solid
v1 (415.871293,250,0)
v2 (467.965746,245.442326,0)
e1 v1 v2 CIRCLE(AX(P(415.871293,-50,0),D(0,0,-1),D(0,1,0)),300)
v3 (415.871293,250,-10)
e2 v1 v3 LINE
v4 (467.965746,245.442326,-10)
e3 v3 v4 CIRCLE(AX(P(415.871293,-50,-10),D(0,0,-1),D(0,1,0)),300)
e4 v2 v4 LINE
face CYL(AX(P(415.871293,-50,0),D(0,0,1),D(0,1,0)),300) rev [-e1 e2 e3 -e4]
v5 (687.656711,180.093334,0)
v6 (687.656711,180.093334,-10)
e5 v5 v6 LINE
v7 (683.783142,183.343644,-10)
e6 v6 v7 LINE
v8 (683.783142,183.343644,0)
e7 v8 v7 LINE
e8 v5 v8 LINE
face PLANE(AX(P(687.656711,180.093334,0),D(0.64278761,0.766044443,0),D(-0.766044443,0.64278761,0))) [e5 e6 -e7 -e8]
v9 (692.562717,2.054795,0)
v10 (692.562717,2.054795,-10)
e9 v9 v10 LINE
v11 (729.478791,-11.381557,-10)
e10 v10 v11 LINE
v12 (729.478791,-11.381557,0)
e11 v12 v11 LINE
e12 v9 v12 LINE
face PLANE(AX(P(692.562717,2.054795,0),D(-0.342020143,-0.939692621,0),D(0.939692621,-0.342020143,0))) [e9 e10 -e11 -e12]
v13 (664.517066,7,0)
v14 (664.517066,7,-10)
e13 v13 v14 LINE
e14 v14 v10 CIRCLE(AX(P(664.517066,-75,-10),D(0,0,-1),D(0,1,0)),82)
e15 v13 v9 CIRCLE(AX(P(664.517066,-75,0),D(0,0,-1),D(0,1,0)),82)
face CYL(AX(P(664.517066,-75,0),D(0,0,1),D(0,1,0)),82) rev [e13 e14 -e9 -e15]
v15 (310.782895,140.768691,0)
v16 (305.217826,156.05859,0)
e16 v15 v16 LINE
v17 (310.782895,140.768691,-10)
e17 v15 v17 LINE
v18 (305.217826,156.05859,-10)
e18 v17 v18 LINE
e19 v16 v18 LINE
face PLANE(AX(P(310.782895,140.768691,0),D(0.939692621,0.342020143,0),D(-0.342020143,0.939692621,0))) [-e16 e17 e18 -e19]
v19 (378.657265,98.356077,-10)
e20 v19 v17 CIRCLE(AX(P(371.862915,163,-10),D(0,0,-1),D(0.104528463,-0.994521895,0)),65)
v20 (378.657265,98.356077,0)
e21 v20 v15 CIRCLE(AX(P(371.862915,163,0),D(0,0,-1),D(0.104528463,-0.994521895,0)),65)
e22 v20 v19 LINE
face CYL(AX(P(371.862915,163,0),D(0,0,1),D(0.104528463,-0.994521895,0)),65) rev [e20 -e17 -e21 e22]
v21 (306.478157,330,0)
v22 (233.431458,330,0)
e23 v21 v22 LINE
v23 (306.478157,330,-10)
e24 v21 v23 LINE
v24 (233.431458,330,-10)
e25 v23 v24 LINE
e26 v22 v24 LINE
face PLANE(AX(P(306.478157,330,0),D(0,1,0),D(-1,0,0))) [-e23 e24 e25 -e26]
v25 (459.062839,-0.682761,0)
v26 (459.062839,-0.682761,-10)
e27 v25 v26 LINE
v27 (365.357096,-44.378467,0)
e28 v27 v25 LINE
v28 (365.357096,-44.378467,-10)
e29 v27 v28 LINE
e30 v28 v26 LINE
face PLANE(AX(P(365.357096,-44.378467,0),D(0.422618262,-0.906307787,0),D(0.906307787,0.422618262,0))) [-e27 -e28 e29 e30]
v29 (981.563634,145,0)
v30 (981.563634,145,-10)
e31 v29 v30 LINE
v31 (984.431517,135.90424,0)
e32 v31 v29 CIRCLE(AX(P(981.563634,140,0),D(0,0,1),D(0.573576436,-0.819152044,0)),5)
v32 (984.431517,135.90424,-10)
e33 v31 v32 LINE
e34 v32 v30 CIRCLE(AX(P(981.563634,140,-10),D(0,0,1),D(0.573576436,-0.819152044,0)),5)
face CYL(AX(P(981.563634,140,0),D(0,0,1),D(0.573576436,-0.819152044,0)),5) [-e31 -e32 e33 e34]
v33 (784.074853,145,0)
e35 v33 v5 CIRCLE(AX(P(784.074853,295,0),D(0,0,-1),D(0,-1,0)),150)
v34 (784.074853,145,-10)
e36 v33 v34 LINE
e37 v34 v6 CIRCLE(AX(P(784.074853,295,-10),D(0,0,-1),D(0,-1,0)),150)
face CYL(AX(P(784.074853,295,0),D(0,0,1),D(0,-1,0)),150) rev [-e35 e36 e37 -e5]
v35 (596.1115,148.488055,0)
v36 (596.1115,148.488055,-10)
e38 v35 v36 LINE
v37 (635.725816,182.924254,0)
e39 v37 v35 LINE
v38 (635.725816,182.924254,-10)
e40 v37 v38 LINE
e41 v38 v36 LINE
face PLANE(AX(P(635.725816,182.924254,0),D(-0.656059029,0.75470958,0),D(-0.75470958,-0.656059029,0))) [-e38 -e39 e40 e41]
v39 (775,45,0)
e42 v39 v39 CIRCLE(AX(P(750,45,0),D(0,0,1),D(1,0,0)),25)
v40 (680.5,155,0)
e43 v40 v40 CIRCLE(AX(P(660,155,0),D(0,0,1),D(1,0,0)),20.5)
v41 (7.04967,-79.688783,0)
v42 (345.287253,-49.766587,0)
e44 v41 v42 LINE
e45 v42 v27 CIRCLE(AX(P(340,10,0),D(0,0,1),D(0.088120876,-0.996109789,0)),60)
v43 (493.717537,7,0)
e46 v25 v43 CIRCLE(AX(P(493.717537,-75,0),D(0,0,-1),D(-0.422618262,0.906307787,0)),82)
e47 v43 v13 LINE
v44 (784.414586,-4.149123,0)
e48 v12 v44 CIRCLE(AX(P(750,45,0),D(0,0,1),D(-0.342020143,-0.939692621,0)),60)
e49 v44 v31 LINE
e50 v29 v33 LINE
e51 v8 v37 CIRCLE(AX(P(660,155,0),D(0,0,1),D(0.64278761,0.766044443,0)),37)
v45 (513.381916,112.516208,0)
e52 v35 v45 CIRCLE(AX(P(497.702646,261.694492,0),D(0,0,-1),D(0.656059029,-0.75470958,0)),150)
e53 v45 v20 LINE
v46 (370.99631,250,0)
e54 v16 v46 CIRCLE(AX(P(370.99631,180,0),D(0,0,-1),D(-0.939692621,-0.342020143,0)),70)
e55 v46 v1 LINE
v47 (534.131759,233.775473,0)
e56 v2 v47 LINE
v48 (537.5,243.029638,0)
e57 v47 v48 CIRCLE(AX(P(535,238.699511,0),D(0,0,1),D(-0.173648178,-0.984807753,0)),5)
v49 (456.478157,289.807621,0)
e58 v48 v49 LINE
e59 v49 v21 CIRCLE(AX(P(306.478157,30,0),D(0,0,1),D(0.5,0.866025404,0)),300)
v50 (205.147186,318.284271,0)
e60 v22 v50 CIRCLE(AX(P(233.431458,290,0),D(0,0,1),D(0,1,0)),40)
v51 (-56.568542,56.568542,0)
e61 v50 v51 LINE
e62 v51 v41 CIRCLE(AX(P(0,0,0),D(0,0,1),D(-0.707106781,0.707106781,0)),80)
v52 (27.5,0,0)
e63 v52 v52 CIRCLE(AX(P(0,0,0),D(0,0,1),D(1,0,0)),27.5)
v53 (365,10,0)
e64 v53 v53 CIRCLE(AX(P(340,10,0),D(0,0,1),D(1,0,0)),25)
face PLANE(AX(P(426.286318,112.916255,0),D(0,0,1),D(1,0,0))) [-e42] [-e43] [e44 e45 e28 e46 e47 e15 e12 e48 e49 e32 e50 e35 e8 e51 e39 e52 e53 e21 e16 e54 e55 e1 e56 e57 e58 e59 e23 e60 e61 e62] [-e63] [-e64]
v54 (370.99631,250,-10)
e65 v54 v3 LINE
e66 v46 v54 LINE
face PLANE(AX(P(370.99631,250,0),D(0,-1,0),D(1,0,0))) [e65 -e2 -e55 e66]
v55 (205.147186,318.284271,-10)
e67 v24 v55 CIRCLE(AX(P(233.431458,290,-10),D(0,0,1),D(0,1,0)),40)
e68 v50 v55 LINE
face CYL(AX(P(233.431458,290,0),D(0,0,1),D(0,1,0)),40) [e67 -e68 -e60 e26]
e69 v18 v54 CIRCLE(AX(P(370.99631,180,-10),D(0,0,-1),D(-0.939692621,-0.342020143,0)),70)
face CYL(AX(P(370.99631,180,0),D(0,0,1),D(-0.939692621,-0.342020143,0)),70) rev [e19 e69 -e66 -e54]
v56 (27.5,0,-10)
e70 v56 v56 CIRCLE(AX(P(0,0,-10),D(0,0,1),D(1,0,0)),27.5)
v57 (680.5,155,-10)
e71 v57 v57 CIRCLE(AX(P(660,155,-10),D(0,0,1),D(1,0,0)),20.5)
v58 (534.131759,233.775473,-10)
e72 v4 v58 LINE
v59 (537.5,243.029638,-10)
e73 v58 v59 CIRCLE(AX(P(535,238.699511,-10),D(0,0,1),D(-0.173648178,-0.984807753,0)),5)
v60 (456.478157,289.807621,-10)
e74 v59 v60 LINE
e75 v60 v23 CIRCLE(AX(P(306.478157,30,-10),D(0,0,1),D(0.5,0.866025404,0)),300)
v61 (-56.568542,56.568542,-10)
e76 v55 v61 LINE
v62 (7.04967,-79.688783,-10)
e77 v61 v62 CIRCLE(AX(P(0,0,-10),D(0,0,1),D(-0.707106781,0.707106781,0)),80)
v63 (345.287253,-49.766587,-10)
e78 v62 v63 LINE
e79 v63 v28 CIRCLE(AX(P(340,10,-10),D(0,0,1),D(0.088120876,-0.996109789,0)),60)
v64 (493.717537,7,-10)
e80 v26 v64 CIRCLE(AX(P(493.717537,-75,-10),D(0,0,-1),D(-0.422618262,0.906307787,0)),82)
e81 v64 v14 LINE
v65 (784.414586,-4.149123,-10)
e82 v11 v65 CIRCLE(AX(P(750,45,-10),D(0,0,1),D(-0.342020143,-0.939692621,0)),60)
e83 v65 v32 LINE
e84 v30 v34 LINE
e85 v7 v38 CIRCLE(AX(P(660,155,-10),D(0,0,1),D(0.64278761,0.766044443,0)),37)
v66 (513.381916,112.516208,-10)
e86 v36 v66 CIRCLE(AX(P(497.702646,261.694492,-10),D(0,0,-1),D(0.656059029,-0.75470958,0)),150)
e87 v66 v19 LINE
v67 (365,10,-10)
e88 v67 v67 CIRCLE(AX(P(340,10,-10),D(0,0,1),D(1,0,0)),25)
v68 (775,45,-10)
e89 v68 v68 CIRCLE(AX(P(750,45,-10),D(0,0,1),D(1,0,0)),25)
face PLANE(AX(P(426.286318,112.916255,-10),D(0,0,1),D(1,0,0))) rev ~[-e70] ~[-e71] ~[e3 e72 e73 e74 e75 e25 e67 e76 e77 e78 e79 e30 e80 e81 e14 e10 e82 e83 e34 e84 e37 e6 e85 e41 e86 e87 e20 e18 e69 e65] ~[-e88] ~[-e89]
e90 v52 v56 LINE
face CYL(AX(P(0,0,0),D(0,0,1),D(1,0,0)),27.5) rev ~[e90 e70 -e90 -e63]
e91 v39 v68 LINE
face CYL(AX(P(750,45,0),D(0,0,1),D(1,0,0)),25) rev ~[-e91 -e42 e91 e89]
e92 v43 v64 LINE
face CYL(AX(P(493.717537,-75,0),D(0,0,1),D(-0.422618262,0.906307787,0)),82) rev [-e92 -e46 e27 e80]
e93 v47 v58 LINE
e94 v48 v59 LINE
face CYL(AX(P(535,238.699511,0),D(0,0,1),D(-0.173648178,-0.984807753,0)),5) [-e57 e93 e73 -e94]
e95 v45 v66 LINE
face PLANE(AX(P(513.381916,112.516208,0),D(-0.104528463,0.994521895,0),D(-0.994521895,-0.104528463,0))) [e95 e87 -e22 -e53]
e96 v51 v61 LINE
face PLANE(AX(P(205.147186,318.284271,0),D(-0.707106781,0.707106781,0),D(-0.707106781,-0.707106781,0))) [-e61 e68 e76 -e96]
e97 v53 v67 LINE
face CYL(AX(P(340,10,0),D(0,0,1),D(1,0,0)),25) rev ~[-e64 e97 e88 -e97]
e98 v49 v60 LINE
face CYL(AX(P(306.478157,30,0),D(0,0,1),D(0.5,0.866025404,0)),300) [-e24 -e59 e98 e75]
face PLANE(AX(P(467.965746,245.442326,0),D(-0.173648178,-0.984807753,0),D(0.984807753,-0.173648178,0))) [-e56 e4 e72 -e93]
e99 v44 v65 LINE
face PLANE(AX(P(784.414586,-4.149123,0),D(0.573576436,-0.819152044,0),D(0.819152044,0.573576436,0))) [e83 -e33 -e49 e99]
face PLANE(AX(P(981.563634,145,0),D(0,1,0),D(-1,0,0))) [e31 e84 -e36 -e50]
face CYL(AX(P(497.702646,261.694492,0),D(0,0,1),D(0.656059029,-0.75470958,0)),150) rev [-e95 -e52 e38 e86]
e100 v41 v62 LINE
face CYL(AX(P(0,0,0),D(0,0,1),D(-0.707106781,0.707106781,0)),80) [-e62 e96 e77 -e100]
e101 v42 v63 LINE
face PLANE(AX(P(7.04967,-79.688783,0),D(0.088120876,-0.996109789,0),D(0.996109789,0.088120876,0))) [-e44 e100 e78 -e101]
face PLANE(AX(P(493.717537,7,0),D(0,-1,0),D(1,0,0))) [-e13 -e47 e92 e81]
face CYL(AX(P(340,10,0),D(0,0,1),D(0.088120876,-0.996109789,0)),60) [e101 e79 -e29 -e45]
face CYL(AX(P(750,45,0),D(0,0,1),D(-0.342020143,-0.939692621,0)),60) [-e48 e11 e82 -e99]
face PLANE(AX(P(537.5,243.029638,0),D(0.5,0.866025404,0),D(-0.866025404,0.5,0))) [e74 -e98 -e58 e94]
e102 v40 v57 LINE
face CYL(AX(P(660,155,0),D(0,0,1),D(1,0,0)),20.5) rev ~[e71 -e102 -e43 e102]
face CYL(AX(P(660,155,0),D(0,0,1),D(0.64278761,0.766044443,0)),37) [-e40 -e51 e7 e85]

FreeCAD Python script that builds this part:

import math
import FreeCAD as App
import Part
import Sketcher
from FreeCAD import Vector
Q = App.Units.Quantity

doc = App.newDocument("Part")
body = doc.addObject("PartDesign::Body", "Body")

# Sketch on XY plane
sketch1 = body.newObject("Sketcher::SketchObject", "Sketch")
sketch1.AttachmentSupport = (doc.getObject("XY_Plane"), [""])
sketch1.MapMode = "FlatFace"
sketch1.addGeometry([
    Part.LineSegment(Vector(7, -80, 0), Vector(345, -50, 0)),  # 0
    Part.ArcOfCircle(Part.Circle(Vector(340, 10, 0), Vector(0, 0, 1), 60), math.radians(-84.94), math.radians(-65)),  # 1
    Part.LineSegment(Vector(365, -44, 0), Vector(459, -1, 0)),  # 2
    Part.ArcOfCircle(Part.Circle(Vector(494, -75, 0), Vector(0, 0, 1), 82), math.radians(90), math.radians(115)),  # 3
    Part.LineSegment(Vector(494, 7, 0), Vector(665, 7, 0)),  # 4
    Part.ArcOfCircle(Part.Circle(Vector(665, -75, 0), Vector(0, 0, 1), 82), math.radians(70), math.radians(90)),  # 5
    Part.LineSegment(Vector(693, 2, 0), Vector(729, -11, 0)),  # 6
    Part.ArcOfCircle(Part.Circle(Vector(750, 45, 0), Vector(0, 0, 1), 60), math.radians(-110), math.radians(-55)),  # 7
    Part.LineSegment(Vector(784, -4, 0), Vector(984, 136, 0)),  # 8
    Part.ArcOfCircle(Part.Circle(Vector(982, 140, 0), Vector(0, 0, 1), 5), math.radians(-55), math.radians(90)),  # 9
    Part.LineSegment(Vector(982, 145, 0), Vector(784, 145, 0)),  # 10
    Part.ArcOfCircle(Part.Circle(Vector(784, 295, 0), Vector(0, 0, 1), 150), math.radians(-130), math.radians(-90)),  # 11
    Part.LineSegment(Vector(688, 180, 0), Vector(684, 183, 0)),  # 12
    Part.ArcOfCircle(Part.Circle(Vector(660, 155, 0), Vector(0, 0, 1), 37), math.radians(50), math.radians(131)),  # 13
    Part.LineSegment(Vector(636, 183, 0), Vector(596, 148, 0)),  # 14
    Part.ArcOfCircle(Part.Circle(Vector(498, 262, 0), Vector(0, 0, 1), 150), math.radians(-84), math.radians(-49)),  # 15
    Part.LineSegment(Vector(513, 113, 0), Vector(379, 98, 0)),  # 16
    Part.ArcOfCircle(Part.Circle(Vector(372, 163, 0), Vector(0, 0, 1), 65), math.radians(-160), math.radians(-84)),  # 17
    Part.LineSegment(Vector(311, 141, 0), Vector(305, 156, 0)),  # 18
    Part.ArcOfCircle(Part.Circle(Vector(371, 180, 0), Vector(0, 0, 1), 70), math.radians(90), math.radians(200)),  # 19
    Part.LineSegment(Vector(371, 250, 0), Vector(416, 250, 0)),  # 20
    Part.ArcOfCircle(Part.Circle(Vector(416, -50, 0), Vector(0, 0, 1), 300), math.radians(80), math.radians(90)),  # 21
    Part.LineSegment(Vector(468, 245, 0), Vector(534, 234, 0)),  # 22
    Part.ArcOfCircle(Part.Circle(Vector(535, 239, 0), Vector(0, 0, 1), 5), math.radians(-100), math.radians(60)),  # 23
    Part.LineSegment(Vector(538, 243, 0), Vector(456, 290, 0)),  # 24
    Part.ArcOfCircle(Part.Circle(Vector(306, 30, 0), Vector(0, 0, 1), 300), math.radians(60), math.radians(90)),  # 25
    Part.LineSegment(Vector(306, 330, 0), Vector(233, 330, 0)),  # 26
    Part.ArcOfCircle(Part.Circle(Vector(233, 290, 0), Vector(0, 0, 1), 40), math.radians(90), math.radians(135)),  # 27
    Part.LineSegment(Vector(205, 318, 0), Vector(-57, 57, 0)),  # 28
    Part.ArcOfCircle(Part.Circle(Vector(0, 0, 0), Vector(0, 0, 1), 80), math.radians(135), math.radians(275)),  # 29
    Part.Circle(Vector(0, 0, 0), Vector(0, 0, 1), 28),  # 30
    Part.Circle(Vector(340, 10, 0), Vector(0, 0, 1), 25),  # 31
    Part.Circle(Vector(750, 45, 0), Vector(0, 0, 1), 25),  # 32
    Part.Circle(Vector(660, 155, 0), Vector(0, 0, 1), 20),  # 33
], False)
sketch1.addConstraint([
    Sketcher.Constraint("Tangent", 0, 2, 1, 1),
    Sketcher.Constraint("Tangent", 1, 2, 2, 1),
    Sketcher.Constraint("Tangent", 2, 2, 3, 2),
    Sketcher.Constraint("Tangent", 3, 1, 4, 1),
    Sketcher.Constraint("Tangent", 4, 2, 5, 2),
    Sketcher.Constraint("Tangent", 5, 1, 6, 1),
    Sketcher.Constraint("Tangent", 6, 2, 7, 1),
    Sketcher.Constraint("Tangent", 7, 2, 8, 1),
    Sketcher.Constraint("Tangent", 8, 2, 9, 1),
    Sketcher.Constraint("Tangent", 9, 2, 10, 1),
    Sketcher.Constraint("Tangent", 10, 2, 11, 2),
    Sketcher.Constraint("Tangent", 11, 1, 12, 1),
    Sketcher.Constraint("Tangent", 12, 2, 13, 1),
    Sketcher.Constraint("Tangent", 13, 2, 14, 1),
    Sketcher.Constraint("Tangent", 14, 2, 15, 2),
    Sketcher.Constraint("Tangent", 15, 1, 16, 1),
    Sketcher.Constraint("Tangent", 16, 2, 17, 2),
    Sketcher.Constraint("Tangent", 17, 1, 18, 1),
    Sketcher.Constraint("Tangent", 18, 2, 19, 2),
    Sketcher.Constraint("Tangent", 19, 1, 20, 1),
    Sketcher.Constraint("Tangent", 20, 2, 21, 2),
    Sketcher.Constraint("Tangent", 21, 1, 22, 1),
    Sketcher.Constraint("Tangent", 22, 2, 23, 1),
    Sketcher.Constraint("Tangent", 23, 2, 24, 1),
    Sketcher.Constraint("Tangent", 24, 2, 25, 1),
    Sketcher.Constraint("Tangent", 25, 2, 26, 1),
    Sketcher.Constraint("Tangent", 26, 2, 27, 1),
    Sketcher.Constraint("Tangent", 27, 2, 28, 1),
    Sketcher.Constraint("Tangent", 28, 2, 29, 1),
    Sketcher.Constraint("Tangent", 29, 2, 0, 1),
    Sketcher.Constraint("Horizontal", 4),
    Sketcher.Constraint("Horizontal", 10),
    Sketcher.Constraint("Horizontal", 20),
    Sketcher.Constraint("Horizontal", 26),
    Sketcher.Constraint("Coincident", 29, 3, -1, 1),
    Sketcher.Constraint("Coincident", 30, 3, -1, 1),
    Sketcher.Constraint("Coincident", 31, 3, 1, 3),
    Sketcher.Constraint("Coincident", 32, 3, 7, 3),
    Sketcher.Constraint("Coincident", 33, 3, 13, 3),
    Sketcher.Constraint("Equal", 3, 5),
    Sketcher.Constraint("Equal", 1, 7),
    Sketcher.Constraint("Equal", 11, 15),
    Sketcher.Constraint("Equal", 9, 23),
    Sketcher.Constraint("Equal", 21, 25),
    Sketcher.Constraint("Equal", 31, 32),
    Sketcher.Constraint("Diameter", 30, Q("55 mm")),
    Sketcher.Constraint("Diameter", 31, Q("50 mm")),
    Sketcher.Constraint("Diameter", 33, Q("41 mm")),
    Sketcher.Constraint("Radius", 1, Q("60 mm")),
    Sketcher.Constraint("Radius", 3, Q("82 mm")),
    Sketcher.Constraint("Radius", 9, Q("5 mm")),
    Sketcher.Constraint("Radius", 11, Q("150 mm")),
    Sketcher.Constraint("Radius", 13, Q("37 mm")),
    Sketcher.Constraint("Radius", 17, Q("65 mm")),
    Sketcher.Constraint("Radius", 19, Q("70 mm")),
    Sketcher.Constraint("Radius", 21, Q("300 mm")),
    Sketcher.Constraint("Radius", 27, Q("40 mm")),
    Sketcher.Constraint("Radius", 29, Q("80 mm")),
    Sketcher.Constraint("Angle", 2, Q("25 deg")),
    Sketcher.Constraint("Angle", 6, Q("-20 deg")),
    Sketcher.Constraint("Angle", 8, Q("35 deg")),
    Sketcher.Constraint("Angle", 12, Q("140 deg")),
    Sketcher.Constraint("Angle", 14, Q("-139 deg")),
    Sketcher.Constraint("Angle", 16, Q("-174 deg")),
    Sketcher.Constraint("Angle", 18, Q("110 deg")),
    Sketcher.Constraint("Angle", 22, Q("-10 deg")),
    Sketcher.Constraint("Angle", 24, Q("150 deg")),
    Sketcher.Constraint("Angle", 28, Q("-135 deg")),
    Sketcher.Constraint("DistanceX", -1, 1, 1, 3, Q("340 mm")),
    Sketcher.Constraint("DistanceY", -1, 1, 1, 3, Q("10 mm")),
    Sketcher.Constraint("DistanceY", 3, 3, -1, 1, Q("75 mm")),
    Sketcher.Constraint("DistanceX", -1, 1, 7, 3, Q("750 mm")),
    Sketcher.Constraint("DistanceY", -1, 1, 7, 3, Q("45 mm")),
    Sketcher.Constraint("DistanceY", -1, 1, 9, 3, Q("140 mm")),
    Sketcher.Constraint("DistanceX", -1, 1, 13, 3, Q("660 mm")),
    Sketcher.Constraint("DistanceY", -1, 1, 13, 3, Q("155 mm")),
    Sketcher.Constraint("DistanceY", -1, 1, 17, 3, Q("163 mm")),
    Sketcher.Constraint("DistanceY", -1, 1, 19, 3, Q("180 mm")),
    Sketcher.Constraint("DistanceX", -1, 1, 23, 3, Q("535 mm")),
    Sketcher.Constraint("DistanceY", -1, 1, 25, 3, Q("30 mm")),
    Sketcher.Constraint("DistanceX", 26, 2, 26, 1, Q("73.0467 mm")),
    Sketcher.Constraint("DistanceX", -1, 1, 14, 2, Q("596.1115 mm")),
])
pad1 = body.newObject("PartDesign::Pad", "Pad")
pad1.Profile = sketch1
pad1.Length = 10
pad1.Reversed = True

doc.recompute()
